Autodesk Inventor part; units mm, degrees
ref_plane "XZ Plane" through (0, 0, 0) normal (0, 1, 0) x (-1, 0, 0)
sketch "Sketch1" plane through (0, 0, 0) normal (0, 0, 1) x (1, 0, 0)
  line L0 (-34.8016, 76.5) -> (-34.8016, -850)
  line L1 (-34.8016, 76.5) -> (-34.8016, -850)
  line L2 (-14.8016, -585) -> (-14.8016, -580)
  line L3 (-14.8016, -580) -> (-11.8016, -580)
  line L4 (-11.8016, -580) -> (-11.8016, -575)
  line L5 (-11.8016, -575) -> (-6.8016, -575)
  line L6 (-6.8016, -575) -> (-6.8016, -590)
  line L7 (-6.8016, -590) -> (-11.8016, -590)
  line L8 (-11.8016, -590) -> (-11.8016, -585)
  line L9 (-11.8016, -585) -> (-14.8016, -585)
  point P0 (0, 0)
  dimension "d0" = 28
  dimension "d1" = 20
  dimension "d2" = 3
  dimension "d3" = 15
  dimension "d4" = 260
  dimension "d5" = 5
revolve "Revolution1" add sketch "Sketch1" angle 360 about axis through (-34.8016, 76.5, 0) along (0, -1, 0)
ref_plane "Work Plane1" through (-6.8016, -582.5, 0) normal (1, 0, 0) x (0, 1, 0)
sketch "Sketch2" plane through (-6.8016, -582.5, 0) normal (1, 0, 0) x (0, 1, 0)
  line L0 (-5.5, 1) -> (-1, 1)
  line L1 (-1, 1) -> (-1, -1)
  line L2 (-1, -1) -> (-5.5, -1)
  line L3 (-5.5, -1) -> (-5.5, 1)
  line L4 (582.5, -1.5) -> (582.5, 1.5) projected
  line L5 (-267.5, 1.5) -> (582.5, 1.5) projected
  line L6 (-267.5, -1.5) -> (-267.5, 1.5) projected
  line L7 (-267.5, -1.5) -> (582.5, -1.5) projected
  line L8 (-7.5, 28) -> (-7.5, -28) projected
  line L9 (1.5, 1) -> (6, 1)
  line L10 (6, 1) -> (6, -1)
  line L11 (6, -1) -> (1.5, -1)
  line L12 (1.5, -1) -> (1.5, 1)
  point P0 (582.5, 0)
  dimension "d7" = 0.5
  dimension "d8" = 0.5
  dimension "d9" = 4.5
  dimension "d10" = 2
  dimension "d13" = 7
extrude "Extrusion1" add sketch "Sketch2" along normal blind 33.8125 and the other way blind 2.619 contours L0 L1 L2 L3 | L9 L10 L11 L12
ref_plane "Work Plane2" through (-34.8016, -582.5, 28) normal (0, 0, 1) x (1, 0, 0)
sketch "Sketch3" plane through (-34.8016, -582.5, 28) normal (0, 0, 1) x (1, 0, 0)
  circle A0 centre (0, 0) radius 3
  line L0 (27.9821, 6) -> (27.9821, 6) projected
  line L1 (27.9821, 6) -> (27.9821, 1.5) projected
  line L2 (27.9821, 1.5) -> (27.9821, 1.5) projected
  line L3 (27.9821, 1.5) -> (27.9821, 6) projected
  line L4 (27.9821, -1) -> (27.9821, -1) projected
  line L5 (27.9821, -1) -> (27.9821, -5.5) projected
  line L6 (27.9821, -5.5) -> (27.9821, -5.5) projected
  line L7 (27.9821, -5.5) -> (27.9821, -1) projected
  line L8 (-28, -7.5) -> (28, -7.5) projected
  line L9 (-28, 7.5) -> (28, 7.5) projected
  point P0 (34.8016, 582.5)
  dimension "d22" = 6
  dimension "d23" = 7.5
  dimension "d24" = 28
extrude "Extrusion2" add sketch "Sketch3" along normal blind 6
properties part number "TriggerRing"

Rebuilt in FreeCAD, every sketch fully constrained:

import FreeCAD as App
import Part
import Sketcher

V = App.Vector
Q = App.Units.Quantity

doc = App.newDocument("Part")
body = doc.addObject("PartDesign::Body", "Body")
body.AllowCompound = True

# Sketch on XY plane
sketch1 = doc.addObject("Sketcher::SketchObject", "Sketch")
body.addObject(sketch1)
sketch1.AttachmentSupport = (doc.XY_Plane, [""])
sketch1.MapMode = "FlatFace"
sketch1.addGeometry([
    Part.LineSegment(V(-14.8, -580, 0), V(-14.8, -585, 0)),  # 0
    Part.LineSegment(V(-14.8, -585, 0), V(-11.8, -585, 0)),  # 1
    Part.LineSegment(V(-11.8, -585, 0), V(-11.8, -590, 0)),  # 2
    Part.LineSegment(V(-11.8, -590, 0), V(-6.8, -590, 0)),  # 3
    Part.LineSegment(V(-6.8, -590, 0), V(-6.8, -575, 0)),  # 4
    Part.LineSegment(V(-6.8, -575, 0), V(-11.8, -575, 0)),  # 5
    Part.LineSegment(V(-11.8, -575, 0), V(-11.8, -580, 0)),  # 6
    Part.LineSegment(V(-11.8, -580, 0), V(-14.8, -580, 0)),  # 7
], False)
sketch1.addGeometry(Part.LineSegment(V(-34.8, -575, 0), V(-34.8, -590, 0)), True)  # axis
sketch1.addConstraint([
    Sketcher.Constraint("Coincident", 0, 2, 1, 1),
    Sketcher.Constraint("Coincident", 1, 2, 2, 1),
    Sketcher.Constraint("Coincident", 2, 2, 3, 1),
    Sketcher.Constraint("Coincident", 3, 2, 4, 1),
    Sketcher.Constraint("Coincident", 4, 2, 5, 1),
    Sketcher.Constraint("Coincident", 5, 2, 6, 1),
    Sketcher.Constraint("Coincident", 6, 2, 7, 1),
    Sketcher.Constraint("Coincident", 7, 2, 0, 1),
    Sketcher.Constraint("Vertical", 0),
    Sketcher.Constraint("Horizontal", 1),
    Sketcher.Constraint("Vertical", 2),
    Sketcher.Constraint("Horizontal", 3),
    Sketcher.Constraint("Vertical", 4),
    Sketcher.Constraint("Horizontal", 5),
    Sketcher.Constraint("Vertical", 6),
    Sketcher.Constraint("Horizontal", 7),
    Sketcher.Constraint("Vertical", 8),
    Sketcher.Constraint("Horizontal", 5, 2, 8, 1),
    Sketcher.Constraint("Horizontal", 3, 2, 8, 2),
    Sketcher.Constraint("Vertical", 2, 2, 5, 2),
    Sketcher.Constraint("Equal", 5, 0),
    Sketcher.Constraint("Equal", 0, 2),
    Sketcher.Constraint("Equal", 2, 6),
    Sketcher.Constraint("DistanceX", 1, 1, 1, 2, Q("3 mm")),
    Sketcher.Constraint("DistanceX", 3, 1, 3, 2, Q("5 mm")),
    Sketcher.Constraint("DistanceX", 8, 1, 7, 2, Q("20 mm")),
    Sketcher.Constraint("DistanceY", 0, 2, -1, 1, Q("585 mm")),
    Sketcher.Constraint("DistanceX", 0, 2, -1, 1, Q("14.8016 mm")),
])
revolution = doc.addObject("PartDesign::Revolution", "Revolution")
body.addObject(revolution)
revolution.Profile = sketch1
revolution.ReferenceAxis = (sketch1, ["Axis0"])
revolution.Angle = 360

# Sketch on YZ plane
sketch2 = doc.addObject("Sketcher::SketchObject", "Sketch001")
body.addObject(sketch2)
sketch2.AttachmentSupport = (doc.YZ_Plane, [""])
sketch2.MapMode = "FlatFace"
sketch2.AttachmentOffset = App.Placement(V(0, 0, -6.8016), App.Rotation())
sketch2.addGeometry([
    Part.LineSegment(V(-583.5, 1, 0), V(-588, 1, 0)),  # 0
    Part.LineSegment(V(-588, 1, 0), V(-588, -1, 0)),  # 1
    Part.LineSegment(V(-588, -1, 0), V(-583.5, -1, 0)),  # 2
    Part.LineSegment(V(-583.5, -1, 0), V(-583.5, 1, 0)),  # 3
    Part.LineSegment(V(-576.5, 1, 0), V(-581, 1, 0)),  # 4
    Part.LineSegment(V(-581, 1, 0), V(-581, -1, 0)),  # 5
    Part.LineSegment(V(-581, -1, 0), V(-576.5, -1, 0)),  # 6
    Part.LineSegment(V(-576.5, -1, 0), V(-576.5, 1, 0)),  # 7
], False)
sketch2.addConstraint([
    Sketcher.Constraint("Coincident", 0, 2, 1, 1),
    Sketcher.Constraint("Coincident", 1, 2, 2, 1),
    Sketcher.Constraint("Coincident", 2, 2, 3, 1),
    Sketcher.Constraint("Coincident", 3, 2, 0, 1),
    Sketcher.Constraint("Coincident", 4, 2, 5, 1),
    Sketcher.Constraint("Coincident", 5, 2, 6, 1),
    Sketcher.Constraint("Coincident", 6, 2, 7, 1),
    Sketcher.Constraint("Coincident", 7, 2, 4, 1),
    Sketcher.Constraint("Horizontal", 0),
    Sketcher.Constraint("Vertical", 1),
    Sketcher.Constraint("Horizontal", 2),
    Sketcher.Constraint("Vertical", 3),
    Sketcher.Constraint("Horizontal", 4),
    Sketcher.Constraint("Vertical", 5),
    Sketcher.Constraint("Horizontal", 6),
    Sketcher.Constraint("Vertical", 7),
    Sketcher.Constraint("Horizontal", 3, 2, 4, 2),
    Sketcher.Constraint("Horizontal", 2, 2, 5, 2),
    Sketcher.Constraint("Equal", 2, 4),
    Sketcher.Constraint("DistanceY", 1, 2, 1, 1, Q("2 mm")),
    Sketcher.Constraint("DistanceX", 0, 2, 0, 1, Q("4.5 mm")),
    Sketcher.Constraint("DistanceX", 0, 2, 4, 2, Q("7 mm")),
    Sketcher.Constraint("DistanceX", 0, 2, -1, 1, Q("588 mm")),
    Sketcher.Constraint("DistanceY", -1, 1, 0, 2, Q("1 mm")),
])
pad1 = doc.addObject("PartDesign::Pad", "Pad")
body.addObject(pad1)
pad1.Profile = sketch2
pad1.Type = "TwoLengths"
pad1.Length = 33.8125
pad1.Length2 = 2.619

# Sketch on XY plane
sketch3 = doc.addObject("Sketcher::SketchObject", "Sketch002")
body.addObject(sketch3)
sketch3.AttachmentSupport = (doc.XY_Plane, [""])
sketch3.MapMode = "FlatFace"
sketch3.AttachmentOffset = App.Placement(V(0, 0, 28), App.Rotation())
sketch3.addGeometry(Part.Circle(V(-34.8, -582.5, 0), V(0, 0, 1), 3), False)
sketch3.addConstraint([
    Sketcher.Constraint("Diameter", 0, Q("6 mm")),
    Sketcher.Constraint("DistanceY", 0, 3, -1, 1, Q("582.5 mm")),
    Sketcher.Constraint("DistanceX", 0, 3, -1, 1, Q("34.8016 mm")),
])
pad2 = doc.addObject("PartDesign::Pad", "Pad001")
body.addObject(pad2)
pad2.Profile = sketch3
pad2.Length = 6

doc.recompute()
